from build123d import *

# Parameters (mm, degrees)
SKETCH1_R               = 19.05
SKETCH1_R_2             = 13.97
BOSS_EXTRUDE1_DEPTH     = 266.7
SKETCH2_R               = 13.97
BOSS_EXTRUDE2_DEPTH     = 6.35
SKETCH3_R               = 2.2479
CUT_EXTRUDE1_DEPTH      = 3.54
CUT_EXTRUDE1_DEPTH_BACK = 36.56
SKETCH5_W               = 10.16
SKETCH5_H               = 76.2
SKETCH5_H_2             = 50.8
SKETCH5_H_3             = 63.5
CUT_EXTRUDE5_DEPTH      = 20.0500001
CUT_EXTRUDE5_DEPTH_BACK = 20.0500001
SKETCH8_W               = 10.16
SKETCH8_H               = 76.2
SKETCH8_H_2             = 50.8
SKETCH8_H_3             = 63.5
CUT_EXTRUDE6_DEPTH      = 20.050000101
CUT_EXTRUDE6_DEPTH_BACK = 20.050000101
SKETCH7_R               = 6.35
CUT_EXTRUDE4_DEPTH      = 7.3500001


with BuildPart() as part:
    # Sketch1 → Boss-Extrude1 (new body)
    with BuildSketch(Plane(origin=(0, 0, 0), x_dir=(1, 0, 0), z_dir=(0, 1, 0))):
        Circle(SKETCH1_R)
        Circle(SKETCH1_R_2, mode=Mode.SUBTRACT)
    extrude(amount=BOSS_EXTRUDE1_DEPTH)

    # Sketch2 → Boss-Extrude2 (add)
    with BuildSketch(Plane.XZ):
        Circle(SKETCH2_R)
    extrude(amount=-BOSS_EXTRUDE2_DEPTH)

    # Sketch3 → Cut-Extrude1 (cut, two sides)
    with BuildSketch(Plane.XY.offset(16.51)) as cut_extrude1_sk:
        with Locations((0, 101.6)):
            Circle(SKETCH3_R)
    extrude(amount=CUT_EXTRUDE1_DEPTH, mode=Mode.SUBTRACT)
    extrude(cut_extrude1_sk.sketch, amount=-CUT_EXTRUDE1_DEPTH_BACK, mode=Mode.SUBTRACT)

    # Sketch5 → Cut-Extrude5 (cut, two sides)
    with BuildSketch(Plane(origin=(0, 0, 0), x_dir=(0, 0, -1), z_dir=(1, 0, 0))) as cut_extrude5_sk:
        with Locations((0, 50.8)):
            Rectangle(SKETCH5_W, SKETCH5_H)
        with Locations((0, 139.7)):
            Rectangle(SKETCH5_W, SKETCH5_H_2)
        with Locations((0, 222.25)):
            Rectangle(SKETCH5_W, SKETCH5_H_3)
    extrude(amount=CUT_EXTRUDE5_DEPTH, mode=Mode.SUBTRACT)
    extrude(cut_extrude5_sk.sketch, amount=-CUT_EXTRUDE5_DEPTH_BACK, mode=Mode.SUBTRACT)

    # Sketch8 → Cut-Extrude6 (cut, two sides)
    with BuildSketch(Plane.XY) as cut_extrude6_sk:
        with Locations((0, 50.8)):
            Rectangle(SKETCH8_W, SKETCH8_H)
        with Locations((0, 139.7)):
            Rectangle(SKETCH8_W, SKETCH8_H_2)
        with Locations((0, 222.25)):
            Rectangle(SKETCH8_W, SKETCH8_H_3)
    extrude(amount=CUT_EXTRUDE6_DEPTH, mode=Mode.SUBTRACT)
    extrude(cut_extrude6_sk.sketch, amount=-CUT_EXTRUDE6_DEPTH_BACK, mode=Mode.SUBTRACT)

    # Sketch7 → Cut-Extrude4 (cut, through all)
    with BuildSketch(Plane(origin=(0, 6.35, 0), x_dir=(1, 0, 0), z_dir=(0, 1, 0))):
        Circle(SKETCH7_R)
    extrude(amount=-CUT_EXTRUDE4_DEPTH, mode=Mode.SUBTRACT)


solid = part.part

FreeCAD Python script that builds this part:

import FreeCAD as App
import Part
import Sketcher
from FreeCAD import Vector
Q = App.Units.Quantity

doc = App.newDocument("Part")
body = doc.addObject("PartDesign::Body", "Body")

sketch1 = body.newObject("Sketcher::SketchObject", "Sketch")
sketch1.AttachmentSupport = (doc.getObject("XZ_Plane"), [""])
sketch1.MapMode = "FlatFace"
sketch1.addGeometry([
    Part.Circle(Vector(0, 0, 0), Vector(0, 0, 1), 19.05),
    Part.Circle(Vector(0, 0, 0), Vector(0, 0, 1), 13.97),
], False)
sketch1.addConstraint([
    Sketcher.Constraint("Coincident", 0, 3, -1, 1),
    Sketcher.Constraint("Coincident", 1, 3, -1, 1),
    Sketcher.Constraint("Diameter", 0, Q("1.5 in")),
    Sketcher.Constraint("Diameter", 1, Q("1.1 in")),
])
pad1 = body.newObject("PartDesign::Pad", "Pad")
pad1.Profile = sketch1
pad1.Length = Q("10.5 in")
pad1.Reversed = True

sketch2 = body.newObject("Sketcher::SketchObject", "Sketch001")
sketch2.AttachmentSupport = (doc.getObject("XZ_Plane"), [""])
sketch2.MapMode = "FlatFace"
sketch2.addGeometry(Part.Circle(Vector(0, 0, 0), Vector(0, 0, 1), 13.97), False)
sketch2.addConstraint([
    Sketcher.Constraint("Coincident", 0, 3, -1, 1),
    Sketcher.Constraint("Diameter", 0, Q("1.1 in")),
])
pad2 = body.newObject("PartDesign::Pad", "Pad001")
pad2.Profile = sketch2
pad2.Length = Q("0.25 in")
pad2.Reversed = True

sketch3 = body.newObject("Sketcher::SketchObject", "Sketch002")
sketch3.AttachmentSupport = (doc.getObject("XY_Plane"), [""])
sketch3.MapMode = "FlatFace"
sketch3.AttachmentOffset = App.Placement(Vector(0, 0, 0.65 * 25.4), App.Rotation())
sketch3.addGeometry(Part.Circle(Vector(0, 101.6, 0), Vector(0, 0, 1), 2.2479), False)
sketch3.addConstraint([
    Sketcher.Constraint("PointOnObject", 0, 3, -2),
    Sketcher.Constraint("Diameter", 0, Q("0.177 in")),
    Sketcher.Constraint("DistanceY", -1, 1, 0, 3, Q("4 in")),
])
pocket1 = body.newObject("PartDesign::Pocket", "Pocket")
pocket1.Profile = sketch3
pocket1.Type = "ThroughAll"
pocket1.Midplane = True

sketch4 = body.newObject("Sketcher::SketchObject", "Sketch003")
sketch4.AttachmentSupport = (doc.getObject("YZ_Plane"), [""])
sketch4.MapMode = "FlatFace"
sketch4.addGeometry([
    Part.LineSegment(Vector(88.9, 5.08, 0), Vector(12.7, 5.08, 0)),
    Part.LineSegment(Vector(12.7, 5.08, 0), Vector(12.7, -5.08, 0)),
    Part.LineSegment(Vector(12.7, -5.08, 0), Vector(88.9, -5.08, 0)),
    Part.LineSegment(Vector(88.9, -5.08, 0), Vector(88.9, 5.08, 0)),
    Part.LineSegment(Vector(165.1, 5.08, 0), Vector(114.3, 5.08, 0)),
    Part.LineSegment(Vector(114.3, 5.08, 0), Vector(114.3, -5.08, 0)),
    Part.LineSegment(Vector(114.3, -5.08, 0), Vector(165.1, -5.08, 0)),
    Part.LineSegment(Vector(165.1, -5.08, 0), Vector(165.1, 5.08, 0)),
    Part.LineSegment(Vector(254, 5.08, 0), Vector(190.5, 5.08, 0)),
    Part.LineSegment(Vector(190.5, 5.08, 0), Vector(190.5, -5.08, 0)),
    Part.LineSegment(Vector(190.5, -5.08, 0), Vector(254, -5.08, 0)),
    Part.LineSegment(Vector(254, -5.08, 0), Vector(254, 5.08, 0)),
], False)
sketch4.addConstraint([
    Sketcher.Constraint("Coincident", 0, 2, 1, 1),
    Sketcher.Constraint("Coincident", 1, 2, 2, 1),
    Sketcher.Constraint("Coincident", 2, 2, 3, 1),
    Sketcher.Constraint("Coincident", 3, 2, 0, 1),
    Sketcher.Constraint("Coincident", 4, 2, 5, 1),
    Sketcher.Constraint("Coincident", 5, 2, 6, 1),
    Sketcher.Constraint("Coincident", 6, 2, 7, 1),
    Sketcher.Constraint("Coincident", 7, 2, 4, 1),
    Sketcher.Constraint("Coincident", 8, 2, 9, 1),
    Sketcher.Constraint("Coincident", 9, 2, 10, 1),
    Sketcher.Constraint("Coincident", 10, 2, 11, 1),
    Sketcher.Constraint("Coincident", 11, 2, 8, 1),
    Sketcher.Constraint("Horizontal", 0),
    Sketcher.Constraint("Vertical", 1),
    Sketcher.Constraint("Horizontal", 2),
    Sketcher.Constraint("Vertical", 3),
    Sketcher.Constraint("Horizontal", 4),
    Sketcher.Constraint("Vertical", 5),
    Sketcher.Constraint("Horizontal", 6),
    Sketcher.Constraint("Vertical", 7),
    Sketcher.Constraint("Horizontal", 8),
    Sketcher.Constraint("Vertical", 9),
    Sketcher.Constraint("Horizontal", 10),
    Sketcher.Constraint("Vertical", 11),
    Sketcher.Constraint("Horizontal", 3, 2, 4, 2),
    Sketcher.Constraint("Horizontal", 2, 2, 5, 2),
    Sketcher.Constraint("Horizontal", 7, 2, 8, 2),
    Sketcher.Constraint("Horizontal", 6, 2, 9, 2),
    Sketcher.Constraint("DistanceX", 0, 2, 0, 1, Q("3 in")),
    Sketcher.Constraint("DistanceX", 4, 2, 4, 1, Q("2 in")),
    Sketcher.Constraint("DistanceX", 8, 2, 8, 1, Q("2.5 in")),
    Sketcher.Constraint("DistanceY", 1, 2, 1, 1, Q("0.4 in")),
    Sketcher.Constraint("DistanceX", -1, 1, 10, 2, Q("10 in")),
    Sketcher.Constraint("DistanceX", 3, 2, 4, 2, Q("1 in")),
    Sketcher.Constraint("DistanceX", 7, 2, 8, 2, Q("1 in")),
    Sketcher.Constraint("DistanceY", -1, 1, 0, 2, Q("0.2 in")),
])
pocket2 = body.newObject("PartDesign::Pocket", "Pocket001")
pocket2.Profile = sketch4
pocket2.Type = "ThroughAll"
pocket2.Midplane = True

sketch5 = body.newObject("Sketcher::SketchObject", "Sketch004")
sketch5.AttachmentSupport = (doc.getObject("XY_Plane"), [""])
sketch5.MapMode = "FlatFace"
sketch5.addGeometry([
    Part.LineSegment(Vector(-5.08, 88.9, 0), Vector(-5.08, 12.7, 0)),
    Part.LineSegment(Vector(-5.08, 12.7, 0), Vector(5.08, 12.7, 0)),
    Part.LineSegment(Vector(5.08, 12.7, 0), Vector(5.08, 88.9, 0)),
    Part.LineSegment(Vector(5.08, 88.9, 0), Vector(-5.08, 88.9, 0)),
    Part.LineSegment(Vector(-5.08, 165.1, 0), Vector(-5.08, 114.3, 0)),
    Part.LineSegment(Vector(-5.08, 114.3, 0), Vector(5.08, 114.3, 0)),
    Part.LineSegment(Vector(5.08, 114.3, 0), Vector(5.08, 165.1, 0)),
    Part.LineSegment(Vector(5.08, 165.1, 0), Vector(-5.08, 165.1, 0)),
    Part.LineSegment(Vector(-5.08, 254, 0), Vector(-5.08, 190.5, 0)),
    Part.LineSegment(Vector(-5.08, 190.5, 0), Vector(5.08, 190.5, 0)),
    Part.LineSegment(Vector(5.08, 190.5, 0), Vector(5.08, 254, 0)),
    Part.LineSegment(Vector(5.08, 254, 0), Vector(-5.08, 254, 0)),
], False)
sketch5.addConstraint([
    Sketcher.Constraint("Coincident", 0, 2, 1, 1),
    Sketcher.Constraint("Coincident", 1, 2, 2, 1),
    Sketcher.Constraint("Coincident", 2, 2, 3, 1),
    Sketcher.Constraint("Coincident", 3, 2, 0, 1),
    Sketcher.Constraint("Coincident", 4, 2, 5, 1),
    Sketcher.Constraint("Coincident", 5, 2, 6, 1),
    Sketcher.Constraint("Coincident", 6, 2, 7, 1),
    Sketcher.Constraint("Coincident", 7, 2, 4, 1),
    Sketcher.Constraint("Coincident", 8, 2, 9, 1),
    Sketcher.Constraint("Coincident", 9, 2, 10, 1),
    Sketcher.Constraint("Coincident", 10, 2, 11, 1),
    Sketcher.Constraint("Coincident", 11, 2, 8, 1),
    Sketcher.Constraint("Vertical", 0),
    Sketcher.Constraint("Horizontal", 1),
    Sketcher.Constraint("Vertical", 2),
    Sketcher.Constraint("Horizontal", 3),
    Sketcher.Constraint("Vertical", 4),
    Sketcher.Constraint("Horizontal", 5),
    Sketcher.Constraint("Vertical", 6),
    Sketcher.Constraint("Horizontal", 7),
    Sketcher.Constraint("Vertical", 8),
    Sketcher.Constraint("Horizontal", 9),
    Sketcher.Constraint("Vertical", 10),
    Sketcher.Constraint("Horizontal", 11),
    Sketcher.Constraint("Vertical", 3, 2, 4, 2),
    Sketcher.Constraint("Vertical", 2, 2, 5, 2),
    Sketcher.Constraint("Vertical", 7, 2, 8, 2),
    Sketcher.Constraint("Vertical", 6, 2, 9, 2),
    Sketcher.Constraint("DistanceY", 0, 2, 0, 1, Q("3 in")),
    Sketcher.Constraint("DistanceY", 4, 2, 4, 1, Q("2 in")),
    Sketcher.Constraint("DistanceX", 1, 1, 1, 2, Q("0.4 in")),
    Sketcher.Constraint("DistanceY", 8, 2, 8, 1, Q("2.5 in")),
    Sketcher.Constraint("DistanceY", -1, 1, 10, 2, Q("10 in")),
    Sketcher.Constraint("DistanceY", 3, 2, 4, 2, Q("1 in")),
    Sketcher.Constraint("DistanceY", 7, 2, 8, 2, Q("1 in")),
    Sketcher.Constraint("DistanceX", 0, 2, -1, 1, Q("0.2 in")),
])
pocket3 = body.newObject("PartDesign::Pocket", "Pocket002")
pocket3.Profile = sketch5
pocket3.Type = "ThroughAll"
pocket3.Midplane = True

sketch6 = body.newObject("Sketcher::SketchObject", "Sketch005")
sketch6.AttachmentSupport = (doc.getObject("XZ_Plane"), [""])
sketch6.MapMode = "FlatFace"
sketch6.AttachmentOffset = App.Placement(Vector(0, 0, -0.25 * 25.4), App.Rotation())
sketch6.addGeometry(Part.Circle(Vector(0, 0, 0), Vector(0, 0, 1), 6.35), False)
sketch6.addConstraint([
    Sketcher.Constraint("Coincident", 0, 3, -1, 1),
    Sketcher.Constraint("Diameter", 0, Q("0.5 in")),
])
pocket4 = body.newObject("PartDesign::Pocket", "Pocket003")
pocket4.Profile = sketch6
pocket4.Type = "ThroughAll"
pocket4.Reversed = True

doc.recompute()
